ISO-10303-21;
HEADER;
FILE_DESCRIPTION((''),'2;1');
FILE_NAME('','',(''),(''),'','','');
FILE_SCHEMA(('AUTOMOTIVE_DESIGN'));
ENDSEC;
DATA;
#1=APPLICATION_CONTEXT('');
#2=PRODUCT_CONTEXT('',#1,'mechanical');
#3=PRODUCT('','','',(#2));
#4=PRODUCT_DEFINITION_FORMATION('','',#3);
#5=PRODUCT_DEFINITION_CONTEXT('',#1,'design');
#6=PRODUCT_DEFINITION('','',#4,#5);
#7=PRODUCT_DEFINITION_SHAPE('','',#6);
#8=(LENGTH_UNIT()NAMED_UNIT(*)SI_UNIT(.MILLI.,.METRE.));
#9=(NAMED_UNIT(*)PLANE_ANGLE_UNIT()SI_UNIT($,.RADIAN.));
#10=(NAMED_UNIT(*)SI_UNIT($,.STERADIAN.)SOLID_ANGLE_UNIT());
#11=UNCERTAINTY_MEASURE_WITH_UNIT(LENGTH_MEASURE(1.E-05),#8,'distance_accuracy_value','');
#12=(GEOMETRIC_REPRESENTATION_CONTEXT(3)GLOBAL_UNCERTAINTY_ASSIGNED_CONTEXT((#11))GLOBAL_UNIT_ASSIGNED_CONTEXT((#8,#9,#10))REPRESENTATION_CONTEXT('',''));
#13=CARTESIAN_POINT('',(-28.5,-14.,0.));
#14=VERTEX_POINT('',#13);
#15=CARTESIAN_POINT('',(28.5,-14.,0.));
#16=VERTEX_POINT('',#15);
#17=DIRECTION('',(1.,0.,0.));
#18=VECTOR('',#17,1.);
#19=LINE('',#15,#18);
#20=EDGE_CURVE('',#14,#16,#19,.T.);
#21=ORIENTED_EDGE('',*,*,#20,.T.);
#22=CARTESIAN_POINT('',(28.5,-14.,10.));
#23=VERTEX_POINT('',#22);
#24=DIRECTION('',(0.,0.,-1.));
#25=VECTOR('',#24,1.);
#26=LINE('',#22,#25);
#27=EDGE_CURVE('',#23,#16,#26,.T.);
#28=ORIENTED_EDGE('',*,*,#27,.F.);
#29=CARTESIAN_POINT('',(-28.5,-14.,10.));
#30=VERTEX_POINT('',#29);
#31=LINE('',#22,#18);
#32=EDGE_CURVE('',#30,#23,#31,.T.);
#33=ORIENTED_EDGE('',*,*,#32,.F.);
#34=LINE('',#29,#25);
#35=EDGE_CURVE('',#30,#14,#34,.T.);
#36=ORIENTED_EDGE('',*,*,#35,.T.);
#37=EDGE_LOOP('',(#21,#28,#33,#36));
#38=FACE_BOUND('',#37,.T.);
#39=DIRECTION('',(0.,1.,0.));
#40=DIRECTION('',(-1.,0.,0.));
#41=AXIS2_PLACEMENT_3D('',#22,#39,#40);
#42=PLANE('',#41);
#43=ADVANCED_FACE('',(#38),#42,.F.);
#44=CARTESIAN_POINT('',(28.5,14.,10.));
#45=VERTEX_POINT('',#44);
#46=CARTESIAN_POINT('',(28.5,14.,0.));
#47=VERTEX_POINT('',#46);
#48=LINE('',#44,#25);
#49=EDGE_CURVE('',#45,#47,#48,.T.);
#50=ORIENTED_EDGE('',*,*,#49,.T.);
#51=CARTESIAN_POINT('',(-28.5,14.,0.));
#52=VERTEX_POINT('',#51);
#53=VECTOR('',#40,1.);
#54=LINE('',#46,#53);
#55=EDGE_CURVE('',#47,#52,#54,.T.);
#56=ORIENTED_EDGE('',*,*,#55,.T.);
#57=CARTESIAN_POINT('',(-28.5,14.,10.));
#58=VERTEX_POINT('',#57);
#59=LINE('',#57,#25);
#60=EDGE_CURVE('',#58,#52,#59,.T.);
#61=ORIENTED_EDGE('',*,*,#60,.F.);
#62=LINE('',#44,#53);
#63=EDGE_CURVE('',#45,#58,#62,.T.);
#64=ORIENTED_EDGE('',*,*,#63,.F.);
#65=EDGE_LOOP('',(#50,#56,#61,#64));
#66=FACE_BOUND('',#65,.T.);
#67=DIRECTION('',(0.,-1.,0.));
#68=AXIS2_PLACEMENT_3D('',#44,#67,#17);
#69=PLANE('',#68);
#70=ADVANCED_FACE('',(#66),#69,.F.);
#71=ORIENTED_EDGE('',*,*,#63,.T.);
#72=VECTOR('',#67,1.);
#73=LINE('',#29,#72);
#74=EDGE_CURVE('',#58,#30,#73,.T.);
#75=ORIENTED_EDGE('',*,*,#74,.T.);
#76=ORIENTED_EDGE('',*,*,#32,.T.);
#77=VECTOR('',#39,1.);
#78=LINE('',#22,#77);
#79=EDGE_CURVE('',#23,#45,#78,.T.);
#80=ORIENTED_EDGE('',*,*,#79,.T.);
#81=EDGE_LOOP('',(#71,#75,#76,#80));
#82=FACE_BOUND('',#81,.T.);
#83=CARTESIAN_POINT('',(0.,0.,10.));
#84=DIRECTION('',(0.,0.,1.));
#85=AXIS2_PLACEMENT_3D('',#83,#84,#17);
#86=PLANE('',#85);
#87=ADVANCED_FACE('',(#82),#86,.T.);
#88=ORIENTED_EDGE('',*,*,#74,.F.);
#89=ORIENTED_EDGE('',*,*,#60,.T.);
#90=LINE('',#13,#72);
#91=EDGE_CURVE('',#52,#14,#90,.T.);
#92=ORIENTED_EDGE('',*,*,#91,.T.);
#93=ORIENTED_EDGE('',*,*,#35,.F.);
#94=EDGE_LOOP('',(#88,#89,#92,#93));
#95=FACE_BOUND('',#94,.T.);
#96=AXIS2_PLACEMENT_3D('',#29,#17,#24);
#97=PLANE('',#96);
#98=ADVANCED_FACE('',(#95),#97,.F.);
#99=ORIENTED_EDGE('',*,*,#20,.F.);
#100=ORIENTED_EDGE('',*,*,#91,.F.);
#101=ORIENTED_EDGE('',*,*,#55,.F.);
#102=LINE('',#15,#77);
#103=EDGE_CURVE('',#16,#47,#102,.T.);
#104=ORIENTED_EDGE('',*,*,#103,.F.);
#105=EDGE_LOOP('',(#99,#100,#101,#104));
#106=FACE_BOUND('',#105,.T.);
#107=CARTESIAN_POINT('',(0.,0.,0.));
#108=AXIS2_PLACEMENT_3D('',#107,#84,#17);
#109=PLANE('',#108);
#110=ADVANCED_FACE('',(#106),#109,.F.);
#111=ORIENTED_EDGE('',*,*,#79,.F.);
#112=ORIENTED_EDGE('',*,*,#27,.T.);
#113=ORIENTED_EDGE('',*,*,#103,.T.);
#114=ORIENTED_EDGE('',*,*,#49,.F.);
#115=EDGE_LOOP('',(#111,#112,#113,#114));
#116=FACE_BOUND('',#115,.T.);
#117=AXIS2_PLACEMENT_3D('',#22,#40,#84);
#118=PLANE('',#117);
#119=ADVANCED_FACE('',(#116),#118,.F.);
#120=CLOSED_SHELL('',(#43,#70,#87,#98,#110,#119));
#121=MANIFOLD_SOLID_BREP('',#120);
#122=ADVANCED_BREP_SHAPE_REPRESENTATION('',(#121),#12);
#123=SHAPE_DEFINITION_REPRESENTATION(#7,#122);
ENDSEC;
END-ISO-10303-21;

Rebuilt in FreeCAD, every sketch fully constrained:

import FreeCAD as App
import Part
import Sketcher

V = App.Vector
Q = App.Units.Quantity


def add_polygon(sketch, points):
    """Adds a closed chain of lines whose ends are joined by coincident constraints."""
    first, n = sketch.GeometryCount, len(points)
    for a, b in zip(points, points[1:] + points[:1]):
        sketch.addGeometry(Part.LineSegment(App.Vector(*a, 0), App.Vector(*b, 0)), False)
    for i in range(n):
        sketch.addConstraint(Sketcher.Constraint("Coincident", first + i, 2, first + (i + 1) % n, 1))

doc = App.newDocument("Part")
params = doc.addObject("Spreadsheet::Sheet", "Params")
for row, (alias, value) in enumerate([
    ("sketch1_width", "57 mm"),
    ("sketch1_height", "28 mm"),
    ("pad1_length", "10 mm"),
], start=1):
    params.set(f"A{row}", alias)
    params.set(f"B{row}", "=" + value)
    params.setAlias(f"B{row}", alias)

body = doc.addObject("PartDesign::Body", "Body")

sketch1 = body.newObject("Sketcher::SketchObject", "Sketch")
sketch1.AttachmentSupport = (doc.getObject("XY_Plane"), [""])
sketch1.MapMode = "FlatFace"
add_polygon(sketch1, [(-28, 14), (-28, -14), (28, -14), (28, 14)])
sketch1.addConstraint([
    Sketcher.Constraint("Vertical", 0),
    Sketcher.Constraint("Horizontal", 1),
    Sketcher.Constraint("Vertical", 2),
    Sketcher.Constraint("Horizontal", 3),
    Sketcher.Constraint("Symmetric", 0, 2, 2, 2, -1, 1),
    Sketcher.Constraint("DistanceX", 1, 1, 1, 2, Q("57 mm")),
    Sketcher.Constraint("DistanceY", 0, 2, 0, 1, Q("28 mm")),
])
sketch1.setExpression("Constraints[9]", "Params.sketch1_width")
sketch1.setExpression("Constraints[10]", "Params.sketch1_height")
pad1 = body.newObject("PartDesign::Pad", "Pad")
pad1.Profile = sketch1
pad1.setExpression("Length", "Params.pad1_length")

doc.recompute()
